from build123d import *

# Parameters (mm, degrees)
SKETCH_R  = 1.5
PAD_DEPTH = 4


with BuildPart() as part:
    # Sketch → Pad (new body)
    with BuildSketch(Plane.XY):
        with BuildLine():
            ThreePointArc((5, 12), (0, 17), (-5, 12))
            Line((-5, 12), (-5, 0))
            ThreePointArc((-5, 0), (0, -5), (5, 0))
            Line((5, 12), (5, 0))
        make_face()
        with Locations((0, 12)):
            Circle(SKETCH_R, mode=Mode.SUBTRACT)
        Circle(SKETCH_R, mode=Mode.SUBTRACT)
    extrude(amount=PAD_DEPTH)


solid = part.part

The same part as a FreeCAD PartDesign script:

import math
import FreeCAD as App
import Part
import Sketcher
from FreeCAD import Vector

doc = App.newDocument("Part")
body = doc.addObject("PartDesign::Body", "Body")

# Sketch on XY plane
sketch1 = body.newObject("Sketcher::SketchObject", "Sketch")
sketch1.AttachmentSupport = (doc.getObject("XY_Plane"), [""])
sketch1.MapMode = "FlatFace"
sketch1.addGeometry([
    Part.ArcOfCircle(Part.Circle(Vector(0, 12, 0), Vector(0, 0, 1), 5), math.radians(0), math.radians(180)),  # 0
    Part.LineSegment(Vector(-5, 12, 0), Vector(-5, 0, 0)),  # 1
    Part.ArcOfCircle(Part.Circle(Vector(0, 0, 0), Vector(0, 0, 1), 5), math.radians(180), math.radians(360)),  # 2
    Part.LineSegment(Vector(5, 0, 0), Vector(5, 12, 0)),  # 3
    Part.Circle(Vector(0, 0, 0), Vector(0, 0, 1), 1.5),  # 4
    Part.Circle(Vector(0, 12, 0), Vector(0, 0, 1), 1.5),  # 5
], False)
sketch1.addConstraint([
    Sketcher.Constraint("Tangent", 0, 2, 1, 1),
    Sketcher.Constraint("Tangent", 1, 2, 2, 1),
    Sketcher.Constraint("Tangent", 2, 2, 3, 1),
    Sketcher.Constraint("Tangent", 3, 2, 0, 1),
    Sketcher.Constraint("Vertical", 1),
    Sketcher.Constraint("Vertical", 3),
    Sketcher.Constraint("Coincident", 2, 3, -1, 1),
    Sketcher.Constraint("Coincident", 4, 3, -1, 1),
    Sketcher.Constraint("Coincident", 5, 3, 0, 3),
    Sketcher.Constraint("Equal", 4, 5),
    Sketcher.Constraint("Diameter", 4, 3.0),
    Sketcher.Constraint("Radius", 0, 5.0),
    Sketcher.Constraint("DistanceY", 1, 2, 1, 1, 12.0),
])
pad1 = body.newObject("PartDesign::Pad", "Pad")
pad1.Profile = sketch1
pad1.Length = 4

doc.recompute()
